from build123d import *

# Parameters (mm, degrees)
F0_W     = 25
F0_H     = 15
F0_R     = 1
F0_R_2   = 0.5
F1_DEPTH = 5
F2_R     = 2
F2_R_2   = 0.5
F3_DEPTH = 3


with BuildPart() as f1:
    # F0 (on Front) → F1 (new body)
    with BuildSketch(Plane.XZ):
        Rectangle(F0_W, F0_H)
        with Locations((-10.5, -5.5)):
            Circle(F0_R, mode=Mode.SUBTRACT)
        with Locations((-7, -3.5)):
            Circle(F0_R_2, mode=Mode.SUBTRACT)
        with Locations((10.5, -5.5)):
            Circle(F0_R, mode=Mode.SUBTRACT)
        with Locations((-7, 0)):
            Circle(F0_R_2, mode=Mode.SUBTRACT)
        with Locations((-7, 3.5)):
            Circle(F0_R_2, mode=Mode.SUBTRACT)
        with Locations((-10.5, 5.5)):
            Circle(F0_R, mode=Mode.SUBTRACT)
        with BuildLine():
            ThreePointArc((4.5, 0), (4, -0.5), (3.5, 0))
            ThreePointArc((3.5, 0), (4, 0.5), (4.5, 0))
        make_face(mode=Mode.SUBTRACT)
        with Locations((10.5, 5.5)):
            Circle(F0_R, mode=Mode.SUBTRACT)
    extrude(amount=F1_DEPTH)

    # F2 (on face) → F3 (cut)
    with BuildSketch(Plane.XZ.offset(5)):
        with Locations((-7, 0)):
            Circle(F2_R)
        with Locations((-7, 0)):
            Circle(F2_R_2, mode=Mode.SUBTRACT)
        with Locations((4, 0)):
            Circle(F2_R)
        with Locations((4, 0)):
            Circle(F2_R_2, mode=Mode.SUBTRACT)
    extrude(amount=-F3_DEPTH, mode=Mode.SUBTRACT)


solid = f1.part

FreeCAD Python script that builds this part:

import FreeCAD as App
import Part
import Sketcher

V = App.Vector

doc = App.newDocument("Part")
body = doc.addObject("PartDesign::Body", "Body")

sketch1 = body.newObject("Sketcher::SketchObject", "Sketch")
sketch1.AttachmentSupport = (doc.getObject("XZ_Plane"), [""])
sketch1.MapMode = "FlatFace"
sketch1.addGeometry([
    Part.LineSegment(V(-12.5, 7.5, 0), V(-12.5, -7.5, 0)),
    Part.LineSegment(V(-12.5, -7.5, 0), V(12.5, -7.5, 0)),
    Part.LineSegment(V(12.5, -7.5, 0), V(12.5, 7.5, 0)),
    Part.LineSegment(V(12.5, 7.5, 0), V(-12.5, 7.5, 0)),
    Part.Circle(V(-10.5, -5.5, 0), V(0, 0, 1), 1),
    Part.Circle(V(-7, -3.5, 0), V(0, 0, 1), 0.5),
    Part.Circle(V(10.5, -5.5, 0), V(0, 0, 1), 1),
    Part.Circle(V(-7, 0, 0), V(0, 0, 1), 0.5),
    Part.Circle(V(-7, 3.5, 0), V(0, 0, 1), 0.5),
    Part.Circle(V(-10.5, 5.5, 0), V(0, 0, 1), 1),
    Part.Circle(V(4, 0, 0), V(0, 0, 1), 0.5),
    Part.Circle(V(10.5, 5.5, 0), V(0, 0, 1), 1),
], False)
sketch1.addConstraint([
    Sketcher.Constraint("Coincident", 0, 2, 1, 1),
    Sketcher.Constraint("Coincident", 1, 2, 2, 1),
    Sketcher.Constraint("Coincident", 2, 2, 3, 1),
    Sketcher.Constraint("Coincident", 3, 2, 0, 1),
    Sketcher.Constraint("Vertical", 0),
    Sketcher.Constraint("Horizontal", 1),
    Sketcher.Constraint("Vertical", 2),
    Sketcher.Constraint("Horizontal", 3),
    Sketcher.Constraint("Equal", 4, 6),
    Sketcher.Constraint("Equal", 5, 7),
    Sketcher.Constraint("Equal", 7, 8),
    Sketcher.Constraint("Equal", 6, 9),
    Sketcher.Constraint("Equal", 8, 10),
    Sketcher.Constraint("Equal", 9, 11),
    Sketcher.Constraint("Symmetric", 6, 3, 9, 3, -1, 1),
    Sketcher.Constraint("Symmetric", 4, 3, 11, 3, -1, 1),
    Sketcher.Constraint("Symmetric", 0, 2, 2, 2, -1, 1),
    Sketcher.Constraint("Symmetric", 4, 3, 6, 3, -2),
    Sketcher.Constraint("Symmetric", 5, 3, 8, 3, -1),
    Sketcher.Constraint("PointOnObject", 7, 3, -1),
    Sketcher.Constraint("PointOnObject", 10, 3, -1),
    Sketcher.Constraint("Vertical", 5, 3, 7, 3),
    Sketcher.Constraint("Diameter", 4, 2.0),
    Sketcher.Constraint("Diameter", 5, 1.0),
    Sketcher.Constraint("DistanceX", 1, 1, 1, 2, 25.0),
    Sketcher.Constraint("DistanceY", 0, 2, 0, 1, 15.0),
    Sketcher.Constraint("DistanceX", 5, 3, -1, 1, 7.0),
    Sketcher.Constraint("DistanceX", -1, 1, 10, 3, 4.0),
    Sketcher.Constraint("DistanceY", 4, 3, 5, 3, 2.0),
    Sketcher.Constraint("DistanceX", 4, 3, 6, 3, 21.0),
    Sketcher.Constraint("DistanceY", 5, 3, 8, 3, 7.0),
])
pad1 = body.newObject("PartDesign::Pad", "Pad")
pad1.Profile = sketch1
pad1.Length = 5

sketch2 = body.newObject("Sketcher::SketchObject", "Sketch001")
sketch2.AttachmentSupport = (doc.getObject("XZ_Plane"), [""])
sketch2.MapMode = "FlatFace"
sketch2.AttachmentOffset = App.Placement(V(0, 0, 5), App.Rotation())
sketch2.addGeometry([
    Part.Circle(V(-7, 0, 0), V(0, 0, 1), 2),
    Part.Circle(V(-7, 0, 0), V(0, 0, 1), 0.5),
    Part.Circle(V(4, 0, 0), V(0, 0, 1), 2),
    Part.Circle(V(4, 0, 0), V(0, 0, 1), 0.5),
], False)
sketch2.addConstraint([
    Sketcher.Constraint("Coincident", 1, 3, 0, 3),
    Sketcher.Constraint("Coincident", 3, 3, 2, 3),
    Sketcher.Constraint("Equal", 0, 2),
    Sketcher.Constraint("Equal", 1, 3),
    Sketcher.Constraint("PointOnObject", 0, 3, -1),
    Sketcher.Constraint("PointOnObject", 2, 3, -1),
    Sketcher.Constraint("Diameter", 0, 4.0),
    Sketcher.Constraint("Diameter", 1, 1.0),
    Sketcher.Constraint("DistanceX", 0, 3, -1, 1, 7.0),
    Sketcher.Constraint("DistanceX", -1, 1, 2, 3, 4.0),
])
pocket1 = body.newObject("PartDesign::Pocket", "Pocket")
pocket1.Profile = sketch2
pocket1.Length = 3

doc.recompute()
